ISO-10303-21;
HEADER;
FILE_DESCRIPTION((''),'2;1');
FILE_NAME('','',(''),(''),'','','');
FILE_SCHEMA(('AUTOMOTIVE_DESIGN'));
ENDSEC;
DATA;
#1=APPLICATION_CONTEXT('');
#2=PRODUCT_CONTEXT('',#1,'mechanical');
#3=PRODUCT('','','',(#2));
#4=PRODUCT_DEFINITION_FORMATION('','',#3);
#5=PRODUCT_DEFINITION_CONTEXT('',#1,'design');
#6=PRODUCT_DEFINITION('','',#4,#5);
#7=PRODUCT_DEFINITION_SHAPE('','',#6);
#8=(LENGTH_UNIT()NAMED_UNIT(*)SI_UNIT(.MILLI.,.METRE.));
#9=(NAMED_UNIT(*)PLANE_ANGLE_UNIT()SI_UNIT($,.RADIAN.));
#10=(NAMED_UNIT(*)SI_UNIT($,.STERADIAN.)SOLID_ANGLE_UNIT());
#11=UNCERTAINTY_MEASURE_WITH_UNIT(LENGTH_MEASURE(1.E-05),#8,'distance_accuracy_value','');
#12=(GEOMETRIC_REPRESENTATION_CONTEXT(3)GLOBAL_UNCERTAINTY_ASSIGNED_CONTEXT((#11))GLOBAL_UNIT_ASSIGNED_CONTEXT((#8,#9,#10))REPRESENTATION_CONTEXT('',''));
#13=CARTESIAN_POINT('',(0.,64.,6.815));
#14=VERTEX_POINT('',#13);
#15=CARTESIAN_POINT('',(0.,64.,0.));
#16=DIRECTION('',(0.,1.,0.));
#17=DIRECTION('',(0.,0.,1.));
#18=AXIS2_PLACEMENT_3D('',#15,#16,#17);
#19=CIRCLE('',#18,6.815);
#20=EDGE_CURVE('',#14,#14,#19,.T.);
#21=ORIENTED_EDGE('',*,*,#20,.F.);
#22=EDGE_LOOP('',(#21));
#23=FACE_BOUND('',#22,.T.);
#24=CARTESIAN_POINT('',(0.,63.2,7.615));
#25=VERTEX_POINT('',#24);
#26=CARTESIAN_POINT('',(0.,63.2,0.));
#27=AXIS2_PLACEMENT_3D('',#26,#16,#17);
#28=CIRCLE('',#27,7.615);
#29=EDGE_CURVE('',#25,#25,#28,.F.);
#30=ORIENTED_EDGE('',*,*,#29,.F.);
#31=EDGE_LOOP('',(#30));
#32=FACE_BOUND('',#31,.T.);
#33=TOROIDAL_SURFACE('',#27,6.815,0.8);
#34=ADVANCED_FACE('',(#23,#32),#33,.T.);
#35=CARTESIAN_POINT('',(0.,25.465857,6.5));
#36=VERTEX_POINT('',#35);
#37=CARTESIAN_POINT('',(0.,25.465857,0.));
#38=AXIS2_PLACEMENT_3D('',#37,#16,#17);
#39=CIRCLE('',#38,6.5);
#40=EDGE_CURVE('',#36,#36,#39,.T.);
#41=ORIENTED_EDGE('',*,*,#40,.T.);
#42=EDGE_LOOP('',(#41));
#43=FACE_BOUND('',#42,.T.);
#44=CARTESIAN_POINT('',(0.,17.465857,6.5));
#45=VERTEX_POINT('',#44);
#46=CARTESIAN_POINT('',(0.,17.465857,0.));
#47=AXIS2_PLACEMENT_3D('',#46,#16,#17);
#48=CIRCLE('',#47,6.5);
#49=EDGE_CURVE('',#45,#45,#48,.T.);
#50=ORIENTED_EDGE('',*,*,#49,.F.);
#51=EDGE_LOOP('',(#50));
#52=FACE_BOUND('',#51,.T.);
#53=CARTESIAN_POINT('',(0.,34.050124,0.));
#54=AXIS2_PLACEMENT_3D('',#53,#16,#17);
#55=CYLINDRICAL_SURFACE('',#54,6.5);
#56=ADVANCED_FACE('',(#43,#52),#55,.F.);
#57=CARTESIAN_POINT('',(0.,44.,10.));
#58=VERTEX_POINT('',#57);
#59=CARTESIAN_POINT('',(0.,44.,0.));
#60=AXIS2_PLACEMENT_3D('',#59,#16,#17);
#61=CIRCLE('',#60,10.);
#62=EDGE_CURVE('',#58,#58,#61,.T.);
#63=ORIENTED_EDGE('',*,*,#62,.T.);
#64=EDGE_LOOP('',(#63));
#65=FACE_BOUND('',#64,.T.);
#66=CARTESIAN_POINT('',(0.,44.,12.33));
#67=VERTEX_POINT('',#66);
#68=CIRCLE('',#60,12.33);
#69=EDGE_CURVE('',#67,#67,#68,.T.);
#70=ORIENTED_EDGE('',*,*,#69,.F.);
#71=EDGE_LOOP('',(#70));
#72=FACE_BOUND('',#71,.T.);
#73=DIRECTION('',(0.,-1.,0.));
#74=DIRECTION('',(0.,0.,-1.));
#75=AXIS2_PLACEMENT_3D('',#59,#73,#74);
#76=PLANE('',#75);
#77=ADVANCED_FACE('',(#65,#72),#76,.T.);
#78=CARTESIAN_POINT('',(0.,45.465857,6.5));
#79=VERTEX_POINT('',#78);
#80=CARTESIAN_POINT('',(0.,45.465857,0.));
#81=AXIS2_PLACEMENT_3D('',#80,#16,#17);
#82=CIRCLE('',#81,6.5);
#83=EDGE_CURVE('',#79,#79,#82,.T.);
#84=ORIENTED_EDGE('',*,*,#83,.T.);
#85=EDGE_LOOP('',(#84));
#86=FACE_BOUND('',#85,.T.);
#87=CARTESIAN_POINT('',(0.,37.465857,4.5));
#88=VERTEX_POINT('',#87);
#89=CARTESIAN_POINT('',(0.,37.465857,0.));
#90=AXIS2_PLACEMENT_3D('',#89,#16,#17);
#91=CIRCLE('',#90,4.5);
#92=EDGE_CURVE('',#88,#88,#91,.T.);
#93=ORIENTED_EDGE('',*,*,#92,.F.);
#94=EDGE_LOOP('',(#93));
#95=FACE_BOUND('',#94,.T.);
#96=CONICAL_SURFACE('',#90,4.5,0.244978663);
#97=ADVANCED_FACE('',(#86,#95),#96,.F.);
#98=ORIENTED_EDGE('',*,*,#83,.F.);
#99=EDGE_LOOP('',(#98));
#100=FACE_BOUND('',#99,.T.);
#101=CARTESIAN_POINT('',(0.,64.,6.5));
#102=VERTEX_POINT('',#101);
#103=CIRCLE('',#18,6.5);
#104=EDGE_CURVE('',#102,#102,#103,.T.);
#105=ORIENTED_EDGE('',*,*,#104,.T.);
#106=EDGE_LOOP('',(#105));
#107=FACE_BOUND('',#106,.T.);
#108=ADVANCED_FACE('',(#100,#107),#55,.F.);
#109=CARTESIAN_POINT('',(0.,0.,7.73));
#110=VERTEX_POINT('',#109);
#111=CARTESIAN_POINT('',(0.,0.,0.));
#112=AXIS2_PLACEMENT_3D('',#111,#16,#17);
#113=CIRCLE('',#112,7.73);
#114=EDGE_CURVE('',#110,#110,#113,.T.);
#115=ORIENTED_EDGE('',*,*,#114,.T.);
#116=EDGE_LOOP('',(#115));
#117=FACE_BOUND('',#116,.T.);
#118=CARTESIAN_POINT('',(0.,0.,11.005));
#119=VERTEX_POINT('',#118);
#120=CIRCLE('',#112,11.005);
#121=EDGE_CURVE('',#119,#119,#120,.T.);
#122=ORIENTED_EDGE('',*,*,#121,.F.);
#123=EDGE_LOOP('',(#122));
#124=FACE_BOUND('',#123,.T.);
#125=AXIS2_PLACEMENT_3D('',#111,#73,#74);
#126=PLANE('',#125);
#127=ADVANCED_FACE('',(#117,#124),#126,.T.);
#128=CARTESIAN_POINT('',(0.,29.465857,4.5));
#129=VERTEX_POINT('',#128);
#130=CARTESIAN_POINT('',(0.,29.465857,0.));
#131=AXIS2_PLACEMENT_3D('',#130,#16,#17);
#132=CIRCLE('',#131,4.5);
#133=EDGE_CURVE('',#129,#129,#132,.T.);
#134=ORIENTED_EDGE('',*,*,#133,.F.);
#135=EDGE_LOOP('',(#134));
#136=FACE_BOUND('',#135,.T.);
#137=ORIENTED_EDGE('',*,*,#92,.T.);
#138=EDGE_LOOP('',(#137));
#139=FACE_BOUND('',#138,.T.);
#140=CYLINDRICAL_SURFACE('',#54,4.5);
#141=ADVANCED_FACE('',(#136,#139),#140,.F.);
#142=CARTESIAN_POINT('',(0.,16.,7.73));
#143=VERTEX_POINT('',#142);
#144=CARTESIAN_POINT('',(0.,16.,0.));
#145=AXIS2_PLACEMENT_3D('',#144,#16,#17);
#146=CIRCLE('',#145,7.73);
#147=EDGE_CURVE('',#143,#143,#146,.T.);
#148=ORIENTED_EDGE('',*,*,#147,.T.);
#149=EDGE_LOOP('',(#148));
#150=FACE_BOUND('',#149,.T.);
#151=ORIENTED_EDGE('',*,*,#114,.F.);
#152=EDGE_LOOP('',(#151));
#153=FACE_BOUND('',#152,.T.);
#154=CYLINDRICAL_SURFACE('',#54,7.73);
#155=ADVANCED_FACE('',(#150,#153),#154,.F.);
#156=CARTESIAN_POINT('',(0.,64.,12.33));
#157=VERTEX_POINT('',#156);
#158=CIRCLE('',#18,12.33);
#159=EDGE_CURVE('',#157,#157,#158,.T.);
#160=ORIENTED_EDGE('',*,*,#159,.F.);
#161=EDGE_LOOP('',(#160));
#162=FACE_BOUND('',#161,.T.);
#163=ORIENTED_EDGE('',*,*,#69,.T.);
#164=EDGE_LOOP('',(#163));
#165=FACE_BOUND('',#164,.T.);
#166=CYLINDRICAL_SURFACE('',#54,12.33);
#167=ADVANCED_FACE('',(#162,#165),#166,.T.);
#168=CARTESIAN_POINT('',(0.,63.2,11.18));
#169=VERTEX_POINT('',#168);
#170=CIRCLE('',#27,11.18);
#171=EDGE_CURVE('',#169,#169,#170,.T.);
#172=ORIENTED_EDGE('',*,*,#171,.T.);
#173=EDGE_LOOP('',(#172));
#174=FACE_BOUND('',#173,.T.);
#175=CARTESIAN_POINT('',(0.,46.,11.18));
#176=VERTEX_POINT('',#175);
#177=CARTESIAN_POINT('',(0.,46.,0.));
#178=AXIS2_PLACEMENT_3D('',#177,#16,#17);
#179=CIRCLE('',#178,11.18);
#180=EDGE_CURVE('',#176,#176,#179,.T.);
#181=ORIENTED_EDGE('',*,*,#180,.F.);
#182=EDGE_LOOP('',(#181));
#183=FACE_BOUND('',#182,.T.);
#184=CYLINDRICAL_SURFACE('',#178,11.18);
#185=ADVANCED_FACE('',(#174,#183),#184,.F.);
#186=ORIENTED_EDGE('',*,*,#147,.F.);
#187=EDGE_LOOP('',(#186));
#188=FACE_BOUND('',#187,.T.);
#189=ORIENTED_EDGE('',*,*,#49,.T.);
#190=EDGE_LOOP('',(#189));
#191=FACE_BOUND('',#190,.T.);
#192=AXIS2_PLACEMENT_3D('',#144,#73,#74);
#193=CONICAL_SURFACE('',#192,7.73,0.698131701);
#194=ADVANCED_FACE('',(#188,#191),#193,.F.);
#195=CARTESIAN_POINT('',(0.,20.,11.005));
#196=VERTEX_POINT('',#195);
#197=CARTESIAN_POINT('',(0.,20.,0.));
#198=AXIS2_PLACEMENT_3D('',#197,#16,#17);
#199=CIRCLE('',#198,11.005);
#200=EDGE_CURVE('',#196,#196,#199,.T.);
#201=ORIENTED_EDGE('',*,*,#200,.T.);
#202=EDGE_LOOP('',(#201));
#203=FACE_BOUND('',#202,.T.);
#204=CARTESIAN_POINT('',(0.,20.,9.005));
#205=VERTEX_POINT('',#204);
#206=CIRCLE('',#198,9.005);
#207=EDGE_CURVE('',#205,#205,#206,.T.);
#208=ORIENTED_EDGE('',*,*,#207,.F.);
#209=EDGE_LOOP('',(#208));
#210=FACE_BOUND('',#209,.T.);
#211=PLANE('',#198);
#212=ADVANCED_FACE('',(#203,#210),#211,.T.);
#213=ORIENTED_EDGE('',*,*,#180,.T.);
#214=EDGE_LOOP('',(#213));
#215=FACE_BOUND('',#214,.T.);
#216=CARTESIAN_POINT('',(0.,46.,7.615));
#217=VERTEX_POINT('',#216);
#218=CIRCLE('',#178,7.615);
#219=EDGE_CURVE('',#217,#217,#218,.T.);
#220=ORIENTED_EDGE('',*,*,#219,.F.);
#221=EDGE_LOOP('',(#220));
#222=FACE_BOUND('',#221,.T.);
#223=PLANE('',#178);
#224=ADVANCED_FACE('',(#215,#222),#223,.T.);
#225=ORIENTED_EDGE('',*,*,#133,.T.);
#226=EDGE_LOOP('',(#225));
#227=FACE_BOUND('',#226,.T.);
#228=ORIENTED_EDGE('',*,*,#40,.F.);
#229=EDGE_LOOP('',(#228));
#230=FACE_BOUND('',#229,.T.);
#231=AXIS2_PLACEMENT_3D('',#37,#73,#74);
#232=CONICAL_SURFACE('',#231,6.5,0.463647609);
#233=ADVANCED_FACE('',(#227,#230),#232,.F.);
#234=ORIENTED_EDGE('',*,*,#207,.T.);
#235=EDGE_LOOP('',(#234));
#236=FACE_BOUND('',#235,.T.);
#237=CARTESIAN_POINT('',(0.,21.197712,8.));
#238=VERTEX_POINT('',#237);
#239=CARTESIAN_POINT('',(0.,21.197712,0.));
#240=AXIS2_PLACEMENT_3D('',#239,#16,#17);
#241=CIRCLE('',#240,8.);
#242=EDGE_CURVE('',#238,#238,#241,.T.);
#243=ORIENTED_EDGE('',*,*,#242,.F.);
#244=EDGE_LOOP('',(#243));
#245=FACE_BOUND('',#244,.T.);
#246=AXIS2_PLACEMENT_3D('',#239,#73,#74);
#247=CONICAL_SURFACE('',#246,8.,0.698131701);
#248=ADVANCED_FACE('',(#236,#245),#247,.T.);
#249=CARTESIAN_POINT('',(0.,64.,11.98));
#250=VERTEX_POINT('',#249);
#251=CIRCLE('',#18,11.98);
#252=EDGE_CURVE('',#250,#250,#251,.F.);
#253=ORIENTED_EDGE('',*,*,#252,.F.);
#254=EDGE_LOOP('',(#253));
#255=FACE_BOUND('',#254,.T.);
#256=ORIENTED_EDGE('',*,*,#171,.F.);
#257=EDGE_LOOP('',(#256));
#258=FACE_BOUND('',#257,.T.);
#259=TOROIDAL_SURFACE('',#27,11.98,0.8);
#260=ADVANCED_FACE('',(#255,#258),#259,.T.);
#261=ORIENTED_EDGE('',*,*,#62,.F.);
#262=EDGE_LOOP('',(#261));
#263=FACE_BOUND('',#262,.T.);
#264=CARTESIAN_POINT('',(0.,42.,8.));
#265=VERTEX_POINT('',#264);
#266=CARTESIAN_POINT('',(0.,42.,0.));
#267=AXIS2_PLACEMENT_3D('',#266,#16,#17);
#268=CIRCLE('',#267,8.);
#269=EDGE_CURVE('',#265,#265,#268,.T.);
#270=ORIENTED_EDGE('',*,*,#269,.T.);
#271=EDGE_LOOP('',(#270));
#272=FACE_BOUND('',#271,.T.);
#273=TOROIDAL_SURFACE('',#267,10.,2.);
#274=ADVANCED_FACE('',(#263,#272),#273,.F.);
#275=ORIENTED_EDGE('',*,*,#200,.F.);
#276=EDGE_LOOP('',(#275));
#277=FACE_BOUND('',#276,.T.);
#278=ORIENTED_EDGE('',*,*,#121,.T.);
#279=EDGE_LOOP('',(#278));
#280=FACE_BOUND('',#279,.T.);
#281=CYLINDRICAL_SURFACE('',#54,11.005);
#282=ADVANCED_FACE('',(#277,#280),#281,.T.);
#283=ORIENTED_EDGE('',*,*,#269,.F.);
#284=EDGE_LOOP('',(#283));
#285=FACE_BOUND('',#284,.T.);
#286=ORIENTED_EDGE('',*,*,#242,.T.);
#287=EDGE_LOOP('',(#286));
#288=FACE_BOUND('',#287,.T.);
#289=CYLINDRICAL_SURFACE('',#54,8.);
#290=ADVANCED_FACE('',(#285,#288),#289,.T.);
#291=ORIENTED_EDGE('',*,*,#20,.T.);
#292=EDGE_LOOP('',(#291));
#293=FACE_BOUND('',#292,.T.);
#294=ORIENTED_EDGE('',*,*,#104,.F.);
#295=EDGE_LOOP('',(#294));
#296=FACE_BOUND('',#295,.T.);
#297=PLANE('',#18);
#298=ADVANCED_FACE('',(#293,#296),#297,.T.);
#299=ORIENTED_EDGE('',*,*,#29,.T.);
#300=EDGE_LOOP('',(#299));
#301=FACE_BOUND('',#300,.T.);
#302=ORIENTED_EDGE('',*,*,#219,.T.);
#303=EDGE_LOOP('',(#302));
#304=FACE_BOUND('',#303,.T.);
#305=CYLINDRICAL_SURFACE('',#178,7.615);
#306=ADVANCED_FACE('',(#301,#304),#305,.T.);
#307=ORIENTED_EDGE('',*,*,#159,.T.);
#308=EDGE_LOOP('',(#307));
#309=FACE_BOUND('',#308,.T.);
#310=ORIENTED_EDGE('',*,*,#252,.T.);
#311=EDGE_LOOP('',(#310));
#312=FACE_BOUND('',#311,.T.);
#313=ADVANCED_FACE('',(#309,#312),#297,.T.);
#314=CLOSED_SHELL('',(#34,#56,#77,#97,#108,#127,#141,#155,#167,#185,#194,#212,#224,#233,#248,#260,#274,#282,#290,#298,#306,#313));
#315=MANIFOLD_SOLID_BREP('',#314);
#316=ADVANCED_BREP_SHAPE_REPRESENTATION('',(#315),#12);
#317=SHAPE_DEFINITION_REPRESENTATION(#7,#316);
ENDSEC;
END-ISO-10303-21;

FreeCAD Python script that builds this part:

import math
import FreeCAD as App
import Part
import Sketcher
from FreeCAD import Vector
Q = App.Units.Quantity


def edges_at(feature, points):
    """Names of the edges that pass closest to the given points."""
    edges = feature.Shape.Edges
    near = lambda p: min(range(len(edges)), key=lambda i: edges[i].distToShape(Part.Vertex(*p))[0])
    return sorted({f"Edge{near(p) + 1}" for p in points})

doc = App.newDocument("Part")
body = doc.addObject("PartDesign::Body", "Body")

sketch1 = doc.addObject("Sketcher::SketchObject", "Sketch")
body.addObject(sketch1)
sketch1.AttachmentSupport = (doc.YZ_Plane, [""])
sketch1.MapMode = "FlatFace"
sketch1.addGeometry([
    Part.LineSegment(Vector(44, -12.33, 0), Vector(64, -12.33, 0)),
    Part.LineSegment(Vector(64, -12.33, 0), Vector(64, -6.5, 0)),
    Part.LineSegment(Vector(64, -6.5, 0), Vector(45.465857, -6.5, 0)),
    Part.LineSegment(Vector(45.465857, -6.5, 0), Vector(37.465857, -4.5, 0)),
    Part.LineSegment(Vector(37.465857, -4.5, 0), Vector(29.465857, -4.5, 0)),
    Part.LineSegment(Vector(29.465857, -4.5, 0), Vector(25.465857, -6.5, 0)),
    Part.LineSegment(Vector(25.465857, -6.5, 0), Vector(17.465857, -6.5, 0)),
    Part.LineSegment(Vector(17.465857, -6.5, 0), Vector(16, -7.73, 0)),
    Part.LineSegment(Vector(16, -7.73, 0), Vector(0, -7.73, 0)),
    Part.LineSegment(Vector(0, -7.73, 0), Vector(0, -11.005, 0)),
    Part.LineSegment(Vector(0, -11.005, 0), Vector(20, -11.005, 0)),
    Part.LineSegment(Vector(20, -11.005, 0), Vector(20, -9.005, 0)),
    Part.LineSegment(Vector(20, -9.005, 0), Vector(21.197712, -8, 0)),
    Part.LineSegment(Vector(21.197712, -8, 0), Vector(42, -8, 0)),
    Part.ArcOfCircle(Part.Circle(Vector(42, -10, 0), Vector(0, 0, 1), 2), math.radians(0), math.radians(90)),
    Part.LineSegment(Vector(44, -10, 0), Vector(44, -12.33, 0)),
], False)
sketch1.addConstraint([
    Sketcher.Constraint("Coincident", 0, 2, 1, 1),
    Sketcher.Constraint("Coincident", 1, 2, 2, 1),
    Sketcher.Constraint("Coincident", 2, 2, 3, 1),
    Sketcher.Constraint("Coincident", 3, 2, 4, 1),
    Sketcher.Constraint("Coincident", 4, 2, 5, 1),
    Sketcher.Constraint("Coincident", 5, 2, 6, 1),
    Sketcher.Constraint("Coincident", 6, 2, 7, 1),
    Sketcher.Constraint("Coincident", 7, 2, 8, 1),
    Sketcher.Constraint("Coincident", 8, 2, 9, 1),
    Sketcher.Constraint("Coincident", 9, 2, 10, 1),
    Sketcher.Constraint("Coincident", 10, 2, 11, 1),
    Sketcher.Constraint("Coincident", 11, 2, 12, 1),
    Sketcher.Constraint("Coincident", 12, 2, 13, 1),
    Sketcher.Constraint("Tangent", 13, 2, 14, 2),
    Sketcher.Constraint("Tangent", 14, 1, 15, 1),
    Sketcher.Constraint("Coincident", 15, 2, 0, 1),
    Sketcher.Constraint("Horizontal", 0),
    Sketcher.Constraint("Vertical", 1),
    Sketcher.Constraint("Horizontal", 2),
    Sketcher.Constraint("Horizontal", 4),
    Sketcher.Constraint("Horizontal", 6),
    Sketcher.Constraint("Horizontal", 8),
    Sketcher.Constraint("Vertical", 9),
    Sketcher.Constraint("Horizontal", 10),
    Sketcher.Constraint("Vertical", 11),
    Sketcher.Constraint("Horizontal", 13),
    Sketcher.Constraint("Vertical", 15),
    Sketcher.Constraint("PointOnObject", 8, 2, -2),
    Sketcher.Constraint("Parallel", 7, 12),
    Sketcher.Constraint("Horizontal", 2, 2, 5, 2),
    Sketcher.Constraint("Equal", 4, 6),
    Sketcher.Constraint("Equal", 0, 10),
    Sketcher.Constraint("Radius", 14, 2.0),
    Sketcher.Constraint("DistanceX", 0, 1, 0, 2, 20.0),
    Sketcher.Constraint("DistanceX", 4, 2, 4, 1, 8.0),
    Sketcher.Constraint("DistanceX", 8, 2, 8, 1, 16.0),
    Sketcher.Constraint("DistanceY", 11, 1, 11, 2, 2.0),
    Sketcher.Constraint("Angle", 7, Q("-140 deg")),
    Sketcher.Constraint("DistanceX", -1, 1, 14, 3, 42.0),
    Sketcher.Constraint("DistanceY", 14, 3, -1, 1, 10.0),
    Sketcher.Constraint("DistanceX", 3, 2, 2, 2, 8.0),
    Sketcher.Constraint("DistanceY", 2, 2, 3, 2, 2.0),
    Sketcher.Constraint("DistanceX", 5, 2, 4, 2, 4.0),
    Sketcher.Constraint("DistanceY", 1, 1, 1, 2, 5.83),
    Sketcher.Constraint("DistanceY", 15, 2, 15, 1, 2.33),
    Sketcher.Constraint("DistanceY", 9, 2, 9, 1, 3.275),
    Sketcher.Constraint("DistanceY", 7, 2, -1, 1, 7.73),
])
revolution = doc.addObject("PartDesign::Revolution", "Revolution")
body.addObject(revolution)
revolution.Profile = sketch1
revolution.ReferenceAxis = (sketch1, ["H_Axis"])
revolution.Angle = 360

sketch2 = doc.addObject("Sketcher::SketchObject", "Sketch001")
body.addObject(sketch2)
sketch2.AttachmentSupport = (doc.XZ_Plane, [""])
sketch2.MapMode = "FlatFace"
sketch2.AttachmentOffset = App.Placement(Vector(0, 0, -64), App.Rotation())
sketch2.addGeometry([
    Part.Circle(Vector(0, 0, 0), Vector(0, 0, 1), 11.18),
    Part.Circle(Vector(0, 0, 0), Vector(0, 0, 1), 7.615),
], False)
sketch2.addConstraint([
    Sketcher.Constraint("Coincident", 0, 3, -1, 1),
    Sketcher.Constraint("Coincident", 1, 3, -1, 1),
    Sketcher.Constraint("Diameter", 0, 22.36),
    Sketcher.Constraint("Diameter", 1, 15.23),
])
pocket1 = doc.addObject("PartDesign::Pocket", "Pocket")
body.addObject(pocket1)
pocket1.Profile = sketch2
pocket1.Length = 18
pocket1.Reversed = True
doc.recompute()

fillet = doc.addObject("PartDesign::Fillet", "Fillet")
body.addObject(fillet)
fillet.Base = (pocket1, edges_at(pocket1, [(0, 64, -11.18), (0, 64, -7.615)]))
fillet.Radius = 0.8

doc.recompute()
